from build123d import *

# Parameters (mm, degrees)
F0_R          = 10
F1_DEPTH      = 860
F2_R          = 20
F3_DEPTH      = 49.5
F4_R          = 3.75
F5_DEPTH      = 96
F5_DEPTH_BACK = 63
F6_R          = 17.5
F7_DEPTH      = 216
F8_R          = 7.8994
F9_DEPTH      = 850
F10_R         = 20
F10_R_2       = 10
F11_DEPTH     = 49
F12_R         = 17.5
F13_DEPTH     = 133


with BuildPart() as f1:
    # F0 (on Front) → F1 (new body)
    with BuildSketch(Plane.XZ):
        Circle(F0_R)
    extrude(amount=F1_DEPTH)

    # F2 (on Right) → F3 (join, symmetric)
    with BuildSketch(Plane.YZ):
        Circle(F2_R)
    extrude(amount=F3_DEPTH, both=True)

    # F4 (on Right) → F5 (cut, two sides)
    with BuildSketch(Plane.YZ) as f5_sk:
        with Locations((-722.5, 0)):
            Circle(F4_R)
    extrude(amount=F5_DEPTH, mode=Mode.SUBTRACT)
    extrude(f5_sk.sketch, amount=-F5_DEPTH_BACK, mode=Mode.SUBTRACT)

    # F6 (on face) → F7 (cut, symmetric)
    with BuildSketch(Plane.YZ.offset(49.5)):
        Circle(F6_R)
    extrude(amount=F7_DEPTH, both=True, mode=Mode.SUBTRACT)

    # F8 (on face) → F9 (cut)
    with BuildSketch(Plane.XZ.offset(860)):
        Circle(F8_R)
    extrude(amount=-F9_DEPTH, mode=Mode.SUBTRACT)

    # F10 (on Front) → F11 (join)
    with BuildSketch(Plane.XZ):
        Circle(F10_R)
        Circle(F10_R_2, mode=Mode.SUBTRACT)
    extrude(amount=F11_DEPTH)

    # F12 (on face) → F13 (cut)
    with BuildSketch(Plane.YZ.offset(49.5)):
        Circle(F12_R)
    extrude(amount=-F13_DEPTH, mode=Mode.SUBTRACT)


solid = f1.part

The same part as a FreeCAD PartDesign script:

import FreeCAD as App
import Part
import Sketcher
Q = App.Units.Quantity

doc = App.newDocument("Part")
body = doc.addObject("PartDesign::Body", "Body")

sketch1 = doc.addObject("Sketcher::SketchObject", "Sketch")
body.addObject(sketch1)
sketch1.AttachmentSupport = (doc.XZ_Plane, [""])
sketch1.MapMode = "FlatFace"
sketch1.addGeometry(Part.Circle(App.Vector(0, 0, 0), App.Vector(0, 0, 1), 10), False)
sketch1.addConstraint([
    Sketcher.Constraint("Coincident", 0, 3, -1, 1),
    Sketcher.Constraint("Diameter", 0, Q("20 mm")),
])
pad1 = doc.addObject("PartDesign::Pad", "Pad")
body.addObject(pad1)
pad1.Profile = sketch1
pad1.Length = 860

sketch2 = doc.addObject("Sketcher::SketchObject", "Sketch001")
body.addObject(sketch2)
sketch2.AttachmentSupport = (doc.YZ_Plane, [""])
sketch2.MapMode = "FlatFace"
sketch2.addGeometry(Part.Circle(App.Vector(0, 0, 0), App.Vector(0, 0, 1), 20), False)
sketch2.addConstraint([
    Sketcher.Constraint("Coincident", 0, 3, -1, 1),
    Sketcher.Constraint("Diameter", 0, Q("40 mm")),
])
pad2 = doc.addObject("PartDesign::Pad", "Pad001")
body.addObject(pad2)
pad2.Profile = sketch2
pad2.Length = 99
pad2.Midplane = True

sketch3 = doc.addObject("Sketcher::SketchObject", "Sketch002")
body.addObject(sketch3)
sketch3.AttachmentSupport = (doc.YZ_Plane, [""])
sketch3.MapMode = "FlatFace"
sketch3.addGeometry(Part.Circle(App.Vector(-722.5, 0, 0), App.Vector(0, 0, 1), 3.75), False)
sketch3.addConstraint([
    Sketcher.Constraint("PointOnObject", 0, 3, -1),
    Sketcher.Constraint("Diameter", 0, Q("7.5 mm")),
    Sketcher.Constraint("DistanceX", 0, 3, -1, 1, Q("722.5 mm")),
])
pocket1 = doc.addObject("PartDesign::Pocket", "Pocket")
body.addObject(pocket1)
pocket1.Profile = sketch3
pocket1.Type = "ThroughAll"
pocket1.Midplane = True

sketch4 = doc.addObject("Sketcher::SketchObject", "Sketch003")
body.addObject(sketch4)
sketch4.AttachmentSupport = (doc.YZ_Plane, [""])
sketch4.MapMode = "FlatFace"
sketch4.AttachmentOffset = App.Placement(App.Vector(0, 0, 49.5), App.Rotation())
sketch4.addGeometry(Part.Circle(App.Vector(0, 0, 0), App.Vector(0, 0, 1), 17.5), False)
sketch4.addConstraint([
    Sketcher.Constraint("Coincident", 0, 3, -1, 1),
    Sketcher.Constraint("Diameter", 0, Q("35 mm")),
])
pocket2 = doc.addObject("PartDesign::Pocket", "Pocket001")
body.addObject(pocket2)
pocket2.Profile = sketch4
pocket2.Length = 432
pocket2.Midplane = True

sketch5 = doc.addObject("Sketcher::SketchObject", "Sketch004")
body.addObject(sketch5)
sketch5.AttachmentSupport = (doc.XZ_Plane, [""])
sketch5.MapMode = "FlatFace"
sketch5.AttachmentOffset = App.Placement(App.Vector(0, 0, 860), App.Rotation())
sketch5.addGeometry(Part.Circle(App.Vector(0, 0, 0), App.Vector(0, 0, 1), 7.8994), False)
sketch5.addConstraint([
    Sketcher.Constraint("Coincident", 0, 3, -1, 1),
    Sketcher.Constraint("Diameter", 0, Q("15.7988 mm")),
])
pocket3 = doc.addObject("PartDesign::Pocket", "Pocket002")
body.addObject(pocket3)
pocket3.Profile = sketch5
pocket3.Length = 850

sketch6 = doc.addObject("Sketcher::SketchObject", "Sketch005")
body.addObject(sketch6)
sketch6.AttachmentSupport = (doc.XZ_Plane, [""])
sketch6.MapMode = "FlatFace"
sketch6.addGeometry([
    Part.Circle(App.Vector(0, 0, 0), App.Vector(0, 0, 1), 20),
    Part.Circle(App.Vector(0, 0, 0), App.Vector(0, 0, 1), 10),
], False)
sketch6.addConstraint([
    Sketcher.Constraint("Coincident", 0, 3, -1, 1),
    Sketcher.Constraint("Coincident", 1, 3, -1, 1),
    Sketcher.Constraint("Diameter", 0, Q("40 mm")),
    Sketcher.Constraint("Diameter", 1, Q("20 mm")),
])
pad3 = doc.addObject("PartDesign::Pad", "Pad002")
body.addObject(pad3)
pad3.Profile = sketch6
pad3.Length = 49

sketch7 = doc.addObject("Sketcher::SketchObject", "Sketch006")
body.addObject(sketch7)
sketch7.AttachmentSupport = (doc.YZ_Plane, [""])
sketch7.MapMode = "FlatFace"
sketch7.AttachmentOffset = App.Placement(App.Vector(0, 0, 49.5), App.Rotation())
sketch7.addGeometry(Part.Circle(App.Vector(0, 0, 0), App.Vector(0, 0, 1), 17.5), False)
sketch7.addConstraint([
    Sketcher.Constraint("Coincident", 0, 3, -1, 1),
    Sketcher.Constraint("Diameter", 0, Q("35 mm")),
])
pocket4 = doc.addObject("PartDesign::Pocket", "Pocket003")
body.addObject(pocket4)
pocket4.Profile = sketch7
pocket4.Length = 133

doc.recompute()
